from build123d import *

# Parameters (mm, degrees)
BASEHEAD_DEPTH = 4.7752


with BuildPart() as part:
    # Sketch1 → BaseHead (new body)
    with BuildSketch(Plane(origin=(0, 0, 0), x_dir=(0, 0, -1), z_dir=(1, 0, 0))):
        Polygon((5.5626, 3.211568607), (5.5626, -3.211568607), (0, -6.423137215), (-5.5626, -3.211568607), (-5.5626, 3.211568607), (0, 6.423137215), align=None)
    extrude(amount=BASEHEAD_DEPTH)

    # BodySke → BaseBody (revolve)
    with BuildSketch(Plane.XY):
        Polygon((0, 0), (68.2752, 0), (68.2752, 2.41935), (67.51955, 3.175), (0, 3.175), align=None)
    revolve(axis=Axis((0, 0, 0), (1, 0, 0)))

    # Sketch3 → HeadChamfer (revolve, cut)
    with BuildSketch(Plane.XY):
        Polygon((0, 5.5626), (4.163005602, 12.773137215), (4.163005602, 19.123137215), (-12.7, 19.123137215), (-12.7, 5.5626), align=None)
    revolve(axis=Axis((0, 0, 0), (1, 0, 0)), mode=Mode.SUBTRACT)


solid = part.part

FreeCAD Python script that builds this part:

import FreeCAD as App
import Part
import Sketcher
from FreeCAD import Vector
Q = App.Units.Quantity

doc = App.newDocument("Part")
params = doc.addObject("Spreadsheet::Sheet", "Params")
for row, (alias, value) in enumerate([
    ("pad1_length", "0.188 in"),
    ("sketch2_width", "2.688 in"),
    ("sketch2_height", "0.125 in"),
    ("revolution_angle", "360 deg"),
    ("sketch3_width", "0.5 in"),
    ("sketch3_height", "0.25 in"),
    ("groove_angle", "360 deg"),
], start=1):
    params.set(f"A{row}", alias)
    params.set(f"B{row}", "=" + value)
    params.setAlias(f"B{row}", alias)

body = doc.addObject("PartDesign::Body", "Body")

sketch1 = doc.addObject("Sketcher::SketchObject", "Sketch")
body.addObject(sketch1)
sketch1.AttachmentSupport = (doc.YZ_Plane, [""])
sketch1.MapMode = "FlatFace"
sketch1.addGeometry([
    Part.LineSegment(Vector(-3, -6, 0), Vector(3, -6, 0)),
    Part.LineSegment(Vector(3, -6, 0), Vector(6, 0, 0)),
    Part.LineSegment(Vector(6, 0, 0), Vector(3, 6, 0)),
    Part.LineSegment(Vector(3, 6, 0), Vector(-3, 6, 0)),
    Part.LineSegment(Vector(-3, 6, 0), Vector(-6, 0, 0)),
    Part.LineSegment(Vector(-6, 0, 0), Vector(-3, -6, 0)),
], False)
sketch1.addConstraint([
    Sketcher.Constraint("Coincident", 0, 2, 1, 1),
    Sketcher.Constraint("Coincident", 1, 2, 2, 1),
    Sketcher.Constraint("Coincident", 2, 2, 3, 1),
    Sketcher.Constraint("Coincident", 3, 2, 4, 1),
    Sketcher.Constraint("Coincident", 4, 2, 5, 1),
    Sketcher.Constraint("Coincident", 5, 2, 0, 1),
    Sketcher.Constraint("Horizontal", 0),
    Sketcher.Constraint("Horizontal", 3),
    Sketcher.Constraint("Symmetric", 0, 2, 3, 2, -1, 1),
    Sketcher.Constraint("Symmetric", 1, 2, 4, 2, -1, 1),
    Sketcher.Constraint("PointOnObject", 1, 2, -1),
    Sketcher.Constraint("Parallel", 2, 5),
    Sketcher.Constraint("Vertical", 0, 2, 2, 2),
    Sketcher.Constraint("Angle", 1, Q("60 deg")),
    Sketcher.Constraint("DistanceY", 0, 2, -1, 1, Q("0.219 in")),
    Sketcher.Constraint("DistanceX", 0, 1, 0, 2, Q("6.423137 mm")),
])
pad1 = doc.addObject("PartDesign::Pad", "Pad")
body.addObject(pad1)
pad1.Profile = sketch1
pad1.setExpression("Length", "Params.pad1_length")

sketch2 = doc.addObject("Sketcher::SketchObject", "Sketch001")
body.addObject(sketch2)
sketch2.AttachmentSupport = (doc.XY_Plane, [""])
sketch2.MapMode = "FlatFace"
sketch2.addGeometry([
    Part.LineSegment(Vector(0, 0, 0), Vector(68.3, 0, 0)),
    Part.LineSegment(Vector(68.3, 0, 0), Vector(68.3, 2.4, 0)),
    Part.LineSegment(Vector(68.3, 2.4, 0), Vector(67.5, 3.2, 0)),
    Part.LineSegment(Vector(67.5, 3.2, 0), Vector(0, 3.2, 0)),
    Part.LineSegment(Vector(0, 3.2, 0), Vector(0, 0, 0)),
], False)
sketch2.addConstraint([
    Sketcher.Constraint("Coincident", 0, 2, 1, 1),
    Sketcher.Constraint("Coincident", 1, 2, 2, 1),
    Sketcher.Constraint("Coincident", 2, 2, 3, 1),
    Sketcher.Constraint("Coincident", 3, 2, 4, 1),
    Sketcher.Constraint("Coincident", 4, 2, 0, 1),
    Sketcher.Constraint("Horizontal", 0),
    Sketcher.Constraint("Vertical", 1),
    Sketcher.Constraint("Horizontal", 3),
    Sketcher.Constraint("Vertical", 4),
    Sketcher.Constraint("Coincident", 4, 2, -1, 1),
    Sketcher.Constraint("Angle", 2, Q("135 deg")),
    Sketcher.Constraint("DistanceX", 0, 1, 0, 2, Q("2.688 in")),
    Sketcher.Constraint("DistanceY", 4, 2, 4, 1, Q("0.125 in")),
    Sketcher.Constraint("DistanceX", 3, 2, 3, 1, Q("67.51955 mm")),
])
sketch2.setExpression("Constraints[11]", "Params.sketch2_width")
sketch2.setExpression("Constraints[12]", "Params.sketch2_height")
revolution = doc.addObject("PartDesign::Revolution", "Revolution")
body.addObject(revolution)
revolution.Profile = sketch2
revolution.ReferenceAxis = (sketch2, ["H_Axis"])
revolution.setExpression("Angle", "Params.revolution_angle")

sketch3 = doc.addObject("Sketcher::SketchObject", "Sketch002")
body.addObject(sketch3)
sketch3.AttachmentSupport = (doc.XY_Plane, [""])
sketch3.MapMode = "FlatFace"
sketch3.addGeometry([
    Part.LineSegment(Vector(0, 6, 0), Vector(4, 13, 0)),
    Part.LineSegment(Vector(4, 13, 0), Vector(4, 19, 0)),
    Part.LineSegment(Vector(4, 19, 0), Vector(-13, 19, 0)),
    Part.LineSegment(Vector(-13, 19, 0), Vector(-13, 6, 0)),
    Part.LineSegment(Vector(-13, 6, 0), Vector(0, 6, 0)),
], False)
sketch3.addConstraint([
    Sketcher.Constraint("Coincident", 0, 2, 1, 1),
    Sketcher.Constraint("Coincident", 1, 2, 2, 1),
    Sketcher.Constraint("Coincident", 2, 2, 3, 1),
    Sketcher.Constraint("Coincident", 3, 2, 4, 1),
    Sketcher.Constraint("Coincident", 4, 2, 0, 1),
    Sketcher.Constraint("Vertical", 1),
    Sketcher.Constraint("Horizontal", 2),
    Sketcher.Constraint("Vertical", 3),
    Sketcher.Constraint("Horizontal", 4),
    Sketcher.Constraint("PointOnObject", 4, 2, -2),
    Sketcher.Constraint("DistanceX", 4, 1, 4, 2, Q("0.5 in")),
    Sketcher.Constraint("Angle", 0, Q("60 deg")),
    Sketcher.Constraint("DistanceY", 1, 1, 1, 2, Q("0.25 in")),
    Sketcher.Constraint("DistanceY", -1, 1, 3, 2, Q("0.219 in")),
    Sketcher.Constraint("Distance", 0, Q("8.326011 mm")),
])
sketch3.setExpression("Constraints[10]", "Params.sketch3_width")
sketch3.setExpression("Constraints[12]", "Params.sketch3_height")
groove = doc.addObject("PartDesign::Groove", "Groove")
body.addObject(groove)
groove.Profile = sketch3
groove.ReferenceAxis = (sketch3, ["H_Axis"])
groove.setExpression("Angle", "Params.groove_angle")

doc.recompute()
